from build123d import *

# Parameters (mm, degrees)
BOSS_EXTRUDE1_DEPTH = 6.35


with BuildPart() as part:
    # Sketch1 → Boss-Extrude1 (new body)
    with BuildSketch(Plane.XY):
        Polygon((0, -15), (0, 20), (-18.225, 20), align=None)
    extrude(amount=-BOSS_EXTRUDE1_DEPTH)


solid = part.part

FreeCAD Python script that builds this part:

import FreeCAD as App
import Part
import Sketcher


def add_polygon(sketch, points):
    """Adds a closed chain of lines whose ends are joined by coincident constraints."""
    first, n = sketch.GeometryCount, len(points)
    for a, b in zip(points, points[1:] + points[:1]):
        sketch.addGeometry(Part.LineSegment(App.Vector(*a, 0), App.Vector(*b, 0)), False)
    for i in range(n):
        sketch.addConstraint(Sketcher.Constraint("Coincident", first + i, 2, first + (i + 1) % n, 1))

doc = App.newDocument("Part")
params = doc.addObject("Spreadsheet::Sheet", "Params")
for row, (alias, value) in enumerate([
    ("sketch1_height", "35 mm"),
    ("pad1_length", "6.35 mm"),
], start=1):
    params.set(f"A{row}", alias)
    params.set(f"B{row}", "=" + value)
    params.setAlias(f"B{row}", alias)

body = doc.addObject("PartDesign::Body", "Body")

sketch1 = doc.addObject("Sketcher::SketchObject", "Sketch")
body.addObject(sketch1)
sketch1.AttachmentSupport = (doc.XY_Plane, [""])
sketch1.MapMode = "FlatFace"
add_polygon(sketch1, [(0, -15), (0, 20), (-18.225, 20)])
sketch1.addConstraint([
    Sketcher.Constraint("Vertical", 0),
    Sketcher.Constraint("Horizontal", 1),
    Sketcher.Constraint("PointOnObject", 0, 2, -2),
    Sketcher.Constraint("DistanceY", 0, 1, 0, 2, 35.0),
    Sketcher.Constraint("DistanceY", -1, 1, 0, 2, 20.0),
    Sketcher.Constraint("DistanceX", 1, 2, 1, 1, 18.225),
])
sketch1.setExpression("Constraints[6]", "Params.sketch1_height")
pad1 = doc.addObject("PartDesign::Pad", "Pad")
body.addObject(pad1)
pad1.Profile = sketch1
pad1.setExpression("Length", "Params.pad1_length")
pad1.Reversed = True

doc.recompute()
